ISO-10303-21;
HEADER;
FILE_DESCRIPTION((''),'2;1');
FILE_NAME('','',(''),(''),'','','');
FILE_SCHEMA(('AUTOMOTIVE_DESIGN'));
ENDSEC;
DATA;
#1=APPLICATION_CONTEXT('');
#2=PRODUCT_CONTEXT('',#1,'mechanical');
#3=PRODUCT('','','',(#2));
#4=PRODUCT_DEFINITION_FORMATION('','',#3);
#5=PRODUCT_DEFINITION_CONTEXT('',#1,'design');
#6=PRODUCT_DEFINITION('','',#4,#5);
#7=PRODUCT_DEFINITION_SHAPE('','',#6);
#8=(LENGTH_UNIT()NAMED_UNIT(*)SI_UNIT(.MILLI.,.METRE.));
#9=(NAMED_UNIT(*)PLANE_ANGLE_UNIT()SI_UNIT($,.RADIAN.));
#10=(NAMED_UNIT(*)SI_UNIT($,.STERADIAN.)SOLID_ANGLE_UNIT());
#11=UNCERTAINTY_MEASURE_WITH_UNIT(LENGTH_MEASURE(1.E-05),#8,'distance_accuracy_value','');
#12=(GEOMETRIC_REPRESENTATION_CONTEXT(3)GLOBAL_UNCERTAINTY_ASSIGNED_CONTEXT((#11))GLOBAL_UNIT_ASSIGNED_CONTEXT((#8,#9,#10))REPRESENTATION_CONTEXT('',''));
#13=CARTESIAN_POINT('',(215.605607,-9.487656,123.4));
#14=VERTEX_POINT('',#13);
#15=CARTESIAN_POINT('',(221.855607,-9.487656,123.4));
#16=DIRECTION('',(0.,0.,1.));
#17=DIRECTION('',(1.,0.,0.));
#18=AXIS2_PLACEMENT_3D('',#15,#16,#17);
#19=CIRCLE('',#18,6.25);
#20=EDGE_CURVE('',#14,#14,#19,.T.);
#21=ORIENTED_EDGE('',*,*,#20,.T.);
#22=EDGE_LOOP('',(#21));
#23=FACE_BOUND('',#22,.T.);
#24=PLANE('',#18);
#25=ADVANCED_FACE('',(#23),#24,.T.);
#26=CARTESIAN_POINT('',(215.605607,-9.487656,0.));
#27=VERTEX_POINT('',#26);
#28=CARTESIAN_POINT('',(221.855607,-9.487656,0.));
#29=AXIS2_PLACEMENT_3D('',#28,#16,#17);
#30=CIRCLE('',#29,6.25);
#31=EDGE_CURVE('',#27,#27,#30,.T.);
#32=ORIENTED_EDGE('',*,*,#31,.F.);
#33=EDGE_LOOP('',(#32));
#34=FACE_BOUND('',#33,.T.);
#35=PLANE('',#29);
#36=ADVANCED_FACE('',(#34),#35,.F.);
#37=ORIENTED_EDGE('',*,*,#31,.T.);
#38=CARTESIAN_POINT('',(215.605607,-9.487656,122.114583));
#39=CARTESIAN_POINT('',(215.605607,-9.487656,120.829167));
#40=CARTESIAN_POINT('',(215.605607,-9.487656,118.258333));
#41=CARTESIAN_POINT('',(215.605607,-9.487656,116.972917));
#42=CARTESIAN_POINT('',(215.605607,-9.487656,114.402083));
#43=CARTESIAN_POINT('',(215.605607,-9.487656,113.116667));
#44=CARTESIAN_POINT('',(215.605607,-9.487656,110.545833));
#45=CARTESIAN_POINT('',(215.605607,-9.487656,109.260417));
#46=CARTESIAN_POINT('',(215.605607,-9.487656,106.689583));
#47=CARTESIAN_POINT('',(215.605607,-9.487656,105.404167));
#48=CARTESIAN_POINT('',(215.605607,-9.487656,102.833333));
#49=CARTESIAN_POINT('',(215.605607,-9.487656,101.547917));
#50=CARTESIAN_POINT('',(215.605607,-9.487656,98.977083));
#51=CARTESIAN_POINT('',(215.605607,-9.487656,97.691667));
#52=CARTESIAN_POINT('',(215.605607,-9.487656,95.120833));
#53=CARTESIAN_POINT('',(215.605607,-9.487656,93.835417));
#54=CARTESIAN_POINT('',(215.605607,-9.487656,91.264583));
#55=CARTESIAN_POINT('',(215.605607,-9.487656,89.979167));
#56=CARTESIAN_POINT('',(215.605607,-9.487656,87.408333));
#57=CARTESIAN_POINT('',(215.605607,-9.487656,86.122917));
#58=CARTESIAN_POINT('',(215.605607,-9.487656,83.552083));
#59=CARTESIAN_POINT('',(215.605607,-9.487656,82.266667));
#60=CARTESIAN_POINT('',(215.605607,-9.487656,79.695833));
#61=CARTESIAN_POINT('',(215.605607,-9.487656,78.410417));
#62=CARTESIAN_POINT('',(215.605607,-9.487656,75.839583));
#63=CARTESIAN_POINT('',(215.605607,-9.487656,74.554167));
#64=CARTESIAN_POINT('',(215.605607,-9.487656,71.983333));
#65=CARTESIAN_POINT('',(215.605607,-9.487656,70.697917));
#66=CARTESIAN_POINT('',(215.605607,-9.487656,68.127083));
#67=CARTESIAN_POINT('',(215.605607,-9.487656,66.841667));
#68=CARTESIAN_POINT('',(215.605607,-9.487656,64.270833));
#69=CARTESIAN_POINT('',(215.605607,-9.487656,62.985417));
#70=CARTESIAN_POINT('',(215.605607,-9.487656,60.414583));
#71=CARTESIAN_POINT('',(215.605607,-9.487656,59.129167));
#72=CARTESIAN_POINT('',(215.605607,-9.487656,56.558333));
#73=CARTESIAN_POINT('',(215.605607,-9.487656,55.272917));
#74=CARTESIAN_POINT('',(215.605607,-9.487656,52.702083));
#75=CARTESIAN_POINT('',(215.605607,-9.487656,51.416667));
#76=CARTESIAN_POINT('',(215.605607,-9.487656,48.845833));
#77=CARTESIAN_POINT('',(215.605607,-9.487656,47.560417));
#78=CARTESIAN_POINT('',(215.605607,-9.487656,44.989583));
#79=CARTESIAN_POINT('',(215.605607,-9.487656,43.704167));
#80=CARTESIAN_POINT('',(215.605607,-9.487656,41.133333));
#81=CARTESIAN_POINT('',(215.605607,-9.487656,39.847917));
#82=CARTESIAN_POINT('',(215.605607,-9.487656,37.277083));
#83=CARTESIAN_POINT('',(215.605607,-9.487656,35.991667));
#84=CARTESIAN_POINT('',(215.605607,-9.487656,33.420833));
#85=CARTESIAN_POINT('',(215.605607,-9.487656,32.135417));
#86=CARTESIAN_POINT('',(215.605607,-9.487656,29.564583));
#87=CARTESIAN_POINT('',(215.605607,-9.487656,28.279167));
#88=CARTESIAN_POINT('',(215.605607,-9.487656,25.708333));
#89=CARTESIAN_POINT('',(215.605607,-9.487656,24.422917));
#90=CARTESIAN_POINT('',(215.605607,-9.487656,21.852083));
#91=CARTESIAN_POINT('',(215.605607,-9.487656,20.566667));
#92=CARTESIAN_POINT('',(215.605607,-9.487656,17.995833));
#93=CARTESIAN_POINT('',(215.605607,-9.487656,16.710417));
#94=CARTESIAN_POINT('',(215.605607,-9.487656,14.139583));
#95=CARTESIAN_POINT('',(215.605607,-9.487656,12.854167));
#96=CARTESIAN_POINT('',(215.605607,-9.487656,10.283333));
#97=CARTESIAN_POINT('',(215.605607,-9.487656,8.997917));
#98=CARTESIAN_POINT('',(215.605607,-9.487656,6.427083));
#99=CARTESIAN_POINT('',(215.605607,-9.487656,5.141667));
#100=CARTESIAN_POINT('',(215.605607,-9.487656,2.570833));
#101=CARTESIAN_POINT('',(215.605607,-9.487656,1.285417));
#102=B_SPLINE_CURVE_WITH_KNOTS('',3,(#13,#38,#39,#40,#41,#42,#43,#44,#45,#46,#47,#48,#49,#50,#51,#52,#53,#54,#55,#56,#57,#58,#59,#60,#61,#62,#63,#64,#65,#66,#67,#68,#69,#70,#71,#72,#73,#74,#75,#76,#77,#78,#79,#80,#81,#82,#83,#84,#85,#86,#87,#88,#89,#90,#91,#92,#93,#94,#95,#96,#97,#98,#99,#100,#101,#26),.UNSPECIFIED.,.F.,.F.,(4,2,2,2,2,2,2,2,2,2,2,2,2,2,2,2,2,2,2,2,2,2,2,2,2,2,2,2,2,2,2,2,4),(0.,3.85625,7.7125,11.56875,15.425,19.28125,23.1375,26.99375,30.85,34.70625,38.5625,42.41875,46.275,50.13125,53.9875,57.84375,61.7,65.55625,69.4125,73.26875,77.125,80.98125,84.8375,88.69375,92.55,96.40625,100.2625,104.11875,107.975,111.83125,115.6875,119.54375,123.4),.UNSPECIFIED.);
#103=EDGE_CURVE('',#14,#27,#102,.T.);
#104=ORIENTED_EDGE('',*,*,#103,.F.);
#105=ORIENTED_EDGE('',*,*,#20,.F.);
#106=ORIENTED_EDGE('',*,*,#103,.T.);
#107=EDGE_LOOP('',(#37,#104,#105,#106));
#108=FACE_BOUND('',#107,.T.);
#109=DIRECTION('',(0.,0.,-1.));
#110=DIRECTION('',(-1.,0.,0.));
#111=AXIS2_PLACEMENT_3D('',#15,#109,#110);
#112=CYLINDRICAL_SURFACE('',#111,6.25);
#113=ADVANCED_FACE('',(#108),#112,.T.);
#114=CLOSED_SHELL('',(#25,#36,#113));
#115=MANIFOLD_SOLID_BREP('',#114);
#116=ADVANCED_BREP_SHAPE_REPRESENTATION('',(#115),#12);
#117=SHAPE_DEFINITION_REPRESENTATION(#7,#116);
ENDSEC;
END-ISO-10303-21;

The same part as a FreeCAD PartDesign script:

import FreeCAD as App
import Part
import Sketcher
from FreeCAD import Vector
Q = App.Units.Quantity

doc = App.newDocument("Part")
params = doc.addObject("Spreadsheet::Sheet", "Params")
for row, (alias, value) in enumerate([
    ("sketch1_diameter", "12.5 mm"),
    ("pad1_length", "123.4 mm"),
], start=1):
    params.set(f"A{row}", alias)
    params.set(f"B{row}", "=" + value)
    params.setAlias(f"B{row}", alias)

body = doc.addObject("PartDesign::Body", "Body")

# Sketch on XY plane
sketch1 = body.newObject("Sketcher::SketchObject", "Sketch")
sketch1.AttachmentSupport = (doc.getObject("XY_Plane"), [""])
sketch1.MapMode = "FlatFace"
sketch1.addGeometry(Part.Circle(Vector(222, -9, 0), Vector(0, 0, 1), 6), False)
sketch1.addConstraint([
    Sketcher.Constraint("Diameter", 0, Q("12.5 mm")),
    Sketcher.Constraint("DistanceX", -1, 1, 0, 3, Q("221.855607 mm")),
    Sketcher.Constraint("DistanceY", 0, 3, -1, 1, Q("9.487656 mm")),
])
sketch1.setExpression("Constraints[0]", "Params.sketch1_diameter")
pad1 = body.newObject("PartDesign::Pad", "Pad")
pad1.Profile = sketch1
pad1.setExpression("Length", "Params.pad1_length")

doc.recompute()
